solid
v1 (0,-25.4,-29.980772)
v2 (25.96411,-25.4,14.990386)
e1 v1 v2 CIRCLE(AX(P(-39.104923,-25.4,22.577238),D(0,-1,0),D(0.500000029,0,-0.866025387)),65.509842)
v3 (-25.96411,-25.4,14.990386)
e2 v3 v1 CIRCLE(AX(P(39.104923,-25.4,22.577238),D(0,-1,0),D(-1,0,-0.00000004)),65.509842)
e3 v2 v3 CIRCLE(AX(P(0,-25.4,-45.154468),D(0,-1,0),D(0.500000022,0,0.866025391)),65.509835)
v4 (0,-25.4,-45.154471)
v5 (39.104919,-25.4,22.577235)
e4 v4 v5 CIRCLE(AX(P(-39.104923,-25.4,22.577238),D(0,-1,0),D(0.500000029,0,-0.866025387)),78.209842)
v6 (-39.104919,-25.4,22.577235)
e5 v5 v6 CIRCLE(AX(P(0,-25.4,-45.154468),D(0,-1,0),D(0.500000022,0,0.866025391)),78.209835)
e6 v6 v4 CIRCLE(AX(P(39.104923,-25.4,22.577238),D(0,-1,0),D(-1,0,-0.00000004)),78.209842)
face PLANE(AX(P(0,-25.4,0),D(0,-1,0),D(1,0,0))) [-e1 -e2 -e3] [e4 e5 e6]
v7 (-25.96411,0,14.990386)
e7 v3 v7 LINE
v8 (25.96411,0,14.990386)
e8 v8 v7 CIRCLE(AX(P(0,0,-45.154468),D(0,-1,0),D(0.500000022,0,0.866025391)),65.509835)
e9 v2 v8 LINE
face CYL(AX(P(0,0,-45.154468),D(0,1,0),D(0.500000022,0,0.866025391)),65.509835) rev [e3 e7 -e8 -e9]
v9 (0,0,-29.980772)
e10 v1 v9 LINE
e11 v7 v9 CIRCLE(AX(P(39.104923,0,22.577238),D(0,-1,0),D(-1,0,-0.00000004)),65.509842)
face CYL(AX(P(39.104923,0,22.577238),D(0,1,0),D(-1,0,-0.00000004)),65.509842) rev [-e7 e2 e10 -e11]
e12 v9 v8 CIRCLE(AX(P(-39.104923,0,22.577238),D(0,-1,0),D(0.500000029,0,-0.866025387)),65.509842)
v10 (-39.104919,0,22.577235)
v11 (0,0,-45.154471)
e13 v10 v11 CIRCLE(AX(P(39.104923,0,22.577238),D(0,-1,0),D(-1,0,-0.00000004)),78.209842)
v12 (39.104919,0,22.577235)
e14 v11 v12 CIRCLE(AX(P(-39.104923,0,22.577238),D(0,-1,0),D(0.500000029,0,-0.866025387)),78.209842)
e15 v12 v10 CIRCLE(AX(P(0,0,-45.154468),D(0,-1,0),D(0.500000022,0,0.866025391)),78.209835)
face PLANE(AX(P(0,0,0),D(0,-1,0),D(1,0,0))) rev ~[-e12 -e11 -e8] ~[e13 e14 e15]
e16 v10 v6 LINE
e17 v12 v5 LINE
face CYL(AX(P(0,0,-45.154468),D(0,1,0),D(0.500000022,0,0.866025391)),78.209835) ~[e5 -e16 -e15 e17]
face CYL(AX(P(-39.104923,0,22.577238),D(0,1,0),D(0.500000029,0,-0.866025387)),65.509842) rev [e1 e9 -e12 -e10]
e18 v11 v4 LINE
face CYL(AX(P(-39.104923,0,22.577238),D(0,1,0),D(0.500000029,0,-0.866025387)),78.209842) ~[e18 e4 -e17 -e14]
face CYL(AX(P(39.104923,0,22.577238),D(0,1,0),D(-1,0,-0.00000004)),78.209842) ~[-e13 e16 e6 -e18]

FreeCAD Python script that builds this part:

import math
import FreeCAD as App
import Part
import Sketcher
Q = App.Units.Quantity


def faces_at(feature, points):
    """Names of the faces that lie closest to the given points."""
    faces = feature.Shape.Faces
    near = lambda p: min(range(len(faces)), key=lambda i: faces[i].distToShape(Part.Vertex(*p))[0])
    return sorted({f"Face{near(p) + 1}" for p in points})

doc = App.newDocument("Part")
body = doc.addObject("PartDesign::Body", "Body")

sketch1 = body.newObject("Sketcher::SketchObject", "Sketch")
sketch1.AttachmentSupport = (doc.getObject("XZ_Plane"), [""])
sketch1.MapMode = "FlatFace"
sketch1.addGeometry(Part.ArcOfCircle(Part.Circle(App.Vector(39, 23, 0), App.Vector(0, 0, 1), 78), math.radians(-180), math.radians(-120)), False)
sketch1.addGeometry(Part.ArcOfCircle(Part.Circle(App.Vector(-39, 23, 0), App.Vector(0, 0, 1), 78), math.radians(-60), math.radians(0)), False)
sketch1.addGeometry(Part.ArcOfCircle(Part.Circle(App.Vector(0, -45, 0), App.Vector(0, 0, 1), 78), math.radians(60), math.radians(120)), False)
sketch1.addConstraint(Sketcher.Constraint("Coincident", 0, 2, 1, 1))
sketch1.addConstraint(Sketcher.Constraint("Coincident", 1, 2, 2, 1))
sketch1.addConstraint(Sketcher.Constraint("Coincident", 2, 2, 0, 1))
sketch1.addConstraint(Sketcher.Constraint("Coincident", 0, 2, 2, 3))
sketch1.addConstraint(Sketcher.Constraint("Coincident", 1, 2, 0, 3))
sketch1.addConstraint(Sketcher.Constraint("Equal", 0, 1))
sketch1.addConstraint(Sketcher.Constraint("Symmetric", 0, 3, 1, 3, -2))
sketch1.addConstraint(Sketcher.Constraint("Radius", 0, 78.209842))
sketch1.addConstraint(Sketcher.Constraint("DistanceY", -1, 1, 0, 3, 22.577238))
pad1 = body.newObject("PartDesign::Pad", "Pad")
pad1.Profile = sketch1
pad1.Length = Q("1 in")
doc.recompute()

thickness = body.newObject("PartDesign::Thickness", "Thickness")
thickness.Base = (pad1, faces_at(pad1, [(0, -25.4, -6.05), (0, 0, -6.05)]))
thickness.Value = Q("0.5 in")
thickness.Reversed = True
thickness.Join = "Arc"

doc.recompute()
